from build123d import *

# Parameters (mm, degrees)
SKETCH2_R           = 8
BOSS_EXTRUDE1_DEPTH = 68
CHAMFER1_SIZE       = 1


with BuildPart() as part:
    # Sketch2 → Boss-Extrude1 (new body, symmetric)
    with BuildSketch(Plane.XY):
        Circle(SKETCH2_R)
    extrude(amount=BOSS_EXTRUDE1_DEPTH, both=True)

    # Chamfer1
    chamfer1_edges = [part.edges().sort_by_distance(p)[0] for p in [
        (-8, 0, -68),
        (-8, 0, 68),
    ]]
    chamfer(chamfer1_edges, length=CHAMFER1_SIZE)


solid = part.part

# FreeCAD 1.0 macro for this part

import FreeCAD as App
import Part
import Sketcher
Q = App.Units.Quantity


def edges_at(feature, points):
    """Names of the edges that pass closest to the given points."""
    edges = feature.Shape.Edges
    near = lambda p: min(range(len(edges)), key=lambda i: edges[i].distToShape(Part.Vertex(*p))[0])
    return sorted({f"Edge{near(p) + 1}" for p in points})

doc = App.newDocument("Part")
body = doc.addObject("PartDesign::Body", "Body")

sketch1 = doc.addObject("Sketcher::SketchObject", "Sketch")
body.addObject(sketch1)
sketch1.AttachmentSupport = (doc.XY_Plane, [""])
sketch1.MapMode = "FlatFace"
sketch1.addGeometry(Part.Circle(App.Vector(0, 0, 0), App.Vector(0, 0, 1), 8), False)
sketch1.addConstraint([
    Sketcher.Constraint("Coincident", 0, 3, -1, 1),
    Sketcher.Constraint("Diameter", 0, Q("16 mm")),
])
pad1 = doc.addObject("PartDesign::Pad", "Pad")
body.addObject(pad1)
pad1.Profile = sketch1
pad1.Length = 136
pad1.Midplane = True
doc.recompute()

chamfer = doc.addObject("PartDesign::Chamfer", "Chamfer")
body.addObject(chamfer)
chamfer.Base = (pad1, edges_at(pad1, [(-8, 0, -68), (-8, 0, 68)]))
chamfer.Size = 1

doc.recompute()
